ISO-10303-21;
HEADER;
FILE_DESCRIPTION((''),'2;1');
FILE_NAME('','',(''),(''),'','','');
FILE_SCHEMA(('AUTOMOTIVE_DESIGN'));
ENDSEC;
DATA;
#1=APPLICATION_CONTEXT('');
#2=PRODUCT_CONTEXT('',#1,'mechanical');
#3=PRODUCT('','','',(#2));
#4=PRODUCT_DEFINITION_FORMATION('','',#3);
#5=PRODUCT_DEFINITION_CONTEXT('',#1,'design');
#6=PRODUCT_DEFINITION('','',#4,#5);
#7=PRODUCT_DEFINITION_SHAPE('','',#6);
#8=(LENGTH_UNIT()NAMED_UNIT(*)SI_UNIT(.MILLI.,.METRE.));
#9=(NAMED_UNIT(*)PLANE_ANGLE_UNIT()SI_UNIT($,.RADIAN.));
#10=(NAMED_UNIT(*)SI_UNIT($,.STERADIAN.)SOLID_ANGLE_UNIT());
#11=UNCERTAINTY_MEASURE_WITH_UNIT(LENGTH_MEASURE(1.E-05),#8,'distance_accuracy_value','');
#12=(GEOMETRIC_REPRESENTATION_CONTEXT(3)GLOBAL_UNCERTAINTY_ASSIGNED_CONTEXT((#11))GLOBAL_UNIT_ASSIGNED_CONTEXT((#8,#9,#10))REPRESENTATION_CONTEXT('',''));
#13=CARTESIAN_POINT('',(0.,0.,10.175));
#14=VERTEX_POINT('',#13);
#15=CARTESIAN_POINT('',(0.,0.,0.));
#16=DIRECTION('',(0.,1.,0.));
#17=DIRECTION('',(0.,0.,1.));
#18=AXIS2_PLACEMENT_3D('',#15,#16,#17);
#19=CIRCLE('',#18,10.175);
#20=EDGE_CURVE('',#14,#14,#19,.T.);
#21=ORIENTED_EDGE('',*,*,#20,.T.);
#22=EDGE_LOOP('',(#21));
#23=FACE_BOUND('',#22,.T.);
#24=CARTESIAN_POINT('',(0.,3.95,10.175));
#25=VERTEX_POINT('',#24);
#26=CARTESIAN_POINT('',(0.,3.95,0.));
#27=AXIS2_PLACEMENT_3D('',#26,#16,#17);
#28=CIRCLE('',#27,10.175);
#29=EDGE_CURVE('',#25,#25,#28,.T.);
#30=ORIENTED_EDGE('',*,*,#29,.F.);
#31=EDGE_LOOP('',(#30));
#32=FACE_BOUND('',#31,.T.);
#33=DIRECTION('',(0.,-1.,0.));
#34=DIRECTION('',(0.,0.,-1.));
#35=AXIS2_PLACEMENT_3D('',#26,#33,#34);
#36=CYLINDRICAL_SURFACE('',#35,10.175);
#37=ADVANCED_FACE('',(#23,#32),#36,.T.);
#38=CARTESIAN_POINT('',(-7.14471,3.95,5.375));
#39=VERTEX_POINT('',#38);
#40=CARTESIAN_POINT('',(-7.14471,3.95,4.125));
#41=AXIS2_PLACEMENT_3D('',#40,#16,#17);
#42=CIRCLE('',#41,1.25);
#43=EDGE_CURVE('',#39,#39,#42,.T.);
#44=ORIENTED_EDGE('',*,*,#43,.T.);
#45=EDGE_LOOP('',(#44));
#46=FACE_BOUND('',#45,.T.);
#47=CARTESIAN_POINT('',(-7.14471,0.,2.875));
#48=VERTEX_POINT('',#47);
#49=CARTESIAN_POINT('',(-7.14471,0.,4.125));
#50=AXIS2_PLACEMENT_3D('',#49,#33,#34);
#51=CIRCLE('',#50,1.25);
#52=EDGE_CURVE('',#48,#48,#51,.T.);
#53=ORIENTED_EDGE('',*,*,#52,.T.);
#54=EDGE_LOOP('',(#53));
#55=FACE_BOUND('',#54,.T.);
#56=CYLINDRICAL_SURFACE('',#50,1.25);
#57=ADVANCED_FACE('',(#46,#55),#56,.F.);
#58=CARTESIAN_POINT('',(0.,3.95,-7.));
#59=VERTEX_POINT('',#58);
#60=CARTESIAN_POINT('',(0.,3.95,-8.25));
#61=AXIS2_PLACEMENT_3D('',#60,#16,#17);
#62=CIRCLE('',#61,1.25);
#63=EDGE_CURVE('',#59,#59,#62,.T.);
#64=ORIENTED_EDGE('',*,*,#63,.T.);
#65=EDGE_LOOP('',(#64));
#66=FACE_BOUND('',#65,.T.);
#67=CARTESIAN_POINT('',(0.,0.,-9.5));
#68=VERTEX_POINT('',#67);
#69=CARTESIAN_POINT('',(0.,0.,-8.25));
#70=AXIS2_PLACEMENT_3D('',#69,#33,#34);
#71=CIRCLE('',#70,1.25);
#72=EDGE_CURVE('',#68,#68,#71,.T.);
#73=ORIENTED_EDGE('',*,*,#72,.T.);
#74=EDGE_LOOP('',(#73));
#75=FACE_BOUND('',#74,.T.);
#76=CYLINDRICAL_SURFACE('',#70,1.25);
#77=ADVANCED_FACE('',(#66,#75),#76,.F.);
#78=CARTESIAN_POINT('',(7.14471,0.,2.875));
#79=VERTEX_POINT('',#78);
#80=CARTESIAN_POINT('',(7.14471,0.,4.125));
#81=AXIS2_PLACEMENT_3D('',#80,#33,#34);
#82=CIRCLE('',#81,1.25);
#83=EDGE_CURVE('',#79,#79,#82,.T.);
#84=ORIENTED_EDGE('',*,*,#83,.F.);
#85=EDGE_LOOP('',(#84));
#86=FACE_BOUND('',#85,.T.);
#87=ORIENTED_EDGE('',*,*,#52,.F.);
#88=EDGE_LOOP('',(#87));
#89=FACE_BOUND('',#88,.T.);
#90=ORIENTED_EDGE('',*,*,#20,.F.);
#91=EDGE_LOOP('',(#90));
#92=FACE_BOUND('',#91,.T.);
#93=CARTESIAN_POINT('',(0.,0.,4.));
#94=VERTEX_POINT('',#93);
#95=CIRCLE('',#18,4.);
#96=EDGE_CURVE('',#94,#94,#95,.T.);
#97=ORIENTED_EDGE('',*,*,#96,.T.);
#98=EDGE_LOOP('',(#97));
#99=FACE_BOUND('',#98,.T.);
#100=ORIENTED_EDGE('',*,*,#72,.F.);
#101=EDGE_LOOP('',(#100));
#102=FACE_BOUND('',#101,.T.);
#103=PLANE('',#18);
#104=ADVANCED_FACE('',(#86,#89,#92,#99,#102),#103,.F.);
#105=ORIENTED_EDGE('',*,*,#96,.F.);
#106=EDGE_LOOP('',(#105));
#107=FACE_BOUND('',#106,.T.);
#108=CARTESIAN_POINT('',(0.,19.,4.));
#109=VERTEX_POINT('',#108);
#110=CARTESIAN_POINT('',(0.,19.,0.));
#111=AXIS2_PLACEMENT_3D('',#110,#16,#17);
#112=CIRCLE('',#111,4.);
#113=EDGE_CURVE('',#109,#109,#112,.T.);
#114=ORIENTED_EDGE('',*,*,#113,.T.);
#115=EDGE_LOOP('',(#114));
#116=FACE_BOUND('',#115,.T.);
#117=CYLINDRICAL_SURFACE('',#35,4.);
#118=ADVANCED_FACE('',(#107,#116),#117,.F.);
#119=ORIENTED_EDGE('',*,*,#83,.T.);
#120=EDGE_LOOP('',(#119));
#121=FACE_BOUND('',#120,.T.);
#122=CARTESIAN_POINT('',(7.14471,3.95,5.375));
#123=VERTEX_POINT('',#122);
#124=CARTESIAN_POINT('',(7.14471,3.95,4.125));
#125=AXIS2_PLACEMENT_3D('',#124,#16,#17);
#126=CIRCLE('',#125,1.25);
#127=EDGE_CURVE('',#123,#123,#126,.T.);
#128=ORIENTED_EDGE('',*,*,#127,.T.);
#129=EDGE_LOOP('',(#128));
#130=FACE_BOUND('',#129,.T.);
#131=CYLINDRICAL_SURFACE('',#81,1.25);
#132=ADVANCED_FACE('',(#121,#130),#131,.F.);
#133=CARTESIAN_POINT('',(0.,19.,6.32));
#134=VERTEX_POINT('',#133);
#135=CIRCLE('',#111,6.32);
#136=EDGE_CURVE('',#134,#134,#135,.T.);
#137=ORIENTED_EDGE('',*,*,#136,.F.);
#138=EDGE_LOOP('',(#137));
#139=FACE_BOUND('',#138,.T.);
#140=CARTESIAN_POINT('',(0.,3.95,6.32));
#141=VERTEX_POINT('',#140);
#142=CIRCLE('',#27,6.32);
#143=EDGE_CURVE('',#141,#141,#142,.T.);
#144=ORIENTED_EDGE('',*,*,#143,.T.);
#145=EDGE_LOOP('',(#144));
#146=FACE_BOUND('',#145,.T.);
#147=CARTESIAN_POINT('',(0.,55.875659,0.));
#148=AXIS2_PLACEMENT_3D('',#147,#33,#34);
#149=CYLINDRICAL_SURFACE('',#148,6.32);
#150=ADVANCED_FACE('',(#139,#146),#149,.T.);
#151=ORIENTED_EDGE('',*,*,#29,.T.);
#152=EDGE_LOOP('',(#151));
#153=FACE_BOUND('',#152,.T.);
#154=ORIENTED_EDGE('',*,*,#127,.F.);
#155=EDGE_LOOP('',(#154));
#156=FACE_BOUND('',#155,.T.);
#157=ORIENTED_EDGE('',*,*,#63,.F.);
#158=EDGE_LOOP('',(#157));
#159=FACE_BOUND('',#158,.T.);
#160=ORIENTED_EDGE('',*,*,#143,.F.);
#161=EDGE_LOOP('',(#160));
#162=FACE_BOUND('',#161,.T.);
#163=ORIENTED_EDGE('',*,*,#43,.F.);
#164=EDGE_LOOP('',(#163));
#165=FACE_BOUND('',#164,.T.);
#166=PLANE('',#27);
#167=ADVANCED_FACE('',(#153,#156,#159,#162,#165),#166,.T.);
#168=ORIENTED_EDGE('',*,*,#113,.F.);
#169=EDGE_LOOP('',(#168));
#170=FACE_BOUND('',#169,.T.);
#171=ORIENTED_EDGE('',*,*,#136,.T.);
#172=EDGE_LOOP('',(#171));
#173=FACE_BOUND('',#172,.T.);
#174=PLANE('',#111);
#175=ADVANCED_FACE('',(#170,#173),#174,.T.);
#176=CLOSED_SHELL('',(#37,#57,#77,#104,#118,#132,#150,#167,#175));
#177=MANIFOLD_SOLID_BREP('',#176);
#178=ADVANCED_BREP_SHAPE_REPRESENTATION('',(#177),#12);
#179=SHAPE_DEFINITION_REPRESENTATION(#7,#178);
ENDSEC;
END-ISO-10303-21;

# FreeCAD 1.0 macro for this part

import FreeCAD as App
import Part
import Sketcher
Q = App.Units.Quantity

doc = App.newDocument("Part")
body = doc.addObject("PartDesign::Body", "Body")

sketch1 = body.newObject("Sketcher::SketchObject", "Sketch")
sketch1.AttachmentSupport = (doc.getObject("XZ_Plane"), [""])
sketch1.MapMode = "FlatFace"
sketch1.addGeometry(Part.Circle(App.Vector(0, 0, 0), App.Vector(0, 0, 1), 10.2), False)
sketch1.addGeometry(Part.Circle(App.Vector(0, 0, 0), App.Vector(0, 0, 1), 4), False)
sketch1.addConstraint(Sketcher.Constraint("Coincident", 0, 3, -1, 1))
sketch1.addConstraint(Sketcher.Constraint("Coincident", 1, 3, -1, 1))
sketch1.addConstraint(Sketcher.Constraint("Diameter", 1, Q("8 mm")))
sketch1.addConstraint(Sketcher.Constraint("Diameter", 0, Q("20.35 mm")))
pad1 = body.newObject("PartDesign::Pad", "Pad")
pad1.Profile = sketch1
pad1.Length = 3.95
pad1.Reversed = True

sketch2 = body.newObject("Sketcher::SketchObject", "Sketch001")
sketch2.AttachmentSupport = (doc.getObject("XZ_Plane"), [""])
sketch2.MapMode = "FlatFace"
sketch2.AttachmentOffset = App.Placement(App.Vector(0, 0, -3.95), App.Rotation())
sketch2.addGeometry(Part.Circle(App.Vector(0, 0, 0), App.Vector(0, 0, 1), 6.3), False)
sketch2.addGeometry(Part.Circle(App.Vector(0, 0, 0), App.Vector(0, 0, 1), 4), False)
sketch2.addConstraint(Sketcher.Constraint("Coincident", 0, 3, -1, 1))
sketch2.addConstraint(Sketcher.Constraint("Coincident", 1, 3, -1, 1))
sketch2.addConstraint(Sketcher.Constraint("Diameter", 1, Q("8 mm")))
sketch2.addConstraint(Sketcher.Constraint("Diameter", 0, Q("12.64 mm")))
pad2 = body.newObject("PartDesign::Pad", "Pad001")
pad2.Profile = sketch2
pad2.Length = 15.05
pad2.Reversed = True

sketch3 = body.newObject("Sketcher::SketchObject", "Sketch002")
sketch3.AttachmentSupport = (doc.getObject("XZ_Plane"), [""])
sketch3.MapMode = "FlatFace"
sketch3.addGeometry(Part.Circle(App.Vector(-7.1, 4.1, 0), App.Vector(0, 0, 1), 1.2), False)
sketch3.addGeometry(Part.Circle(App.Vector(7.1, 4.1, 0), App.Vector(0, 0, 1), 1.2), False)
sketch3.addGeometry(Part.Circle(App.Vector(0, -8.2, 0), App.Vector(0, 0, 1), 1.2), False)
sketch3.addConstraint(Sketcher.Constraint("Equal", 0, 1))
sketch3.addConstraint(Sketcher.Constraint("Equal", 1, 2))
sketch3.addConstraint(Sketcher.Constraint("Symmetric", 0, 3, 1, 3, -2))
sketch3.addConstraint(Sketcher.Constraint("PointOnObject", 2, 3, -2))
sketch3.addConstraint(Sketcher.Constraint("Diameter", 0, Q("2.5 mm")))
sketch3.addConstraint(Sketcher.Constraint("DistanceY", 2, 3, -1, 1, Q("8.25 mm")))
sketch3.addConstraint(Sketcher.Constraint("DistanceY", -1, 1, 0, 3, Q("4.125 mm")))
sketch3.addConstraint(Sketcher.Constraint("DistanceX", 0, 3, -1, 1, Q("7.14471 mm")))
doc.recompute()
hole = body.newObject("PartDesign::Hole", "Hole")
hole.Profile = sketch3
hole.ThreadType = "None"
hole.Diameter = 2.5
hole.DepthType = "Dimension"
hole.Depth = 3.95
hole.DrillPoint = "Flat"

doc.recompute()
